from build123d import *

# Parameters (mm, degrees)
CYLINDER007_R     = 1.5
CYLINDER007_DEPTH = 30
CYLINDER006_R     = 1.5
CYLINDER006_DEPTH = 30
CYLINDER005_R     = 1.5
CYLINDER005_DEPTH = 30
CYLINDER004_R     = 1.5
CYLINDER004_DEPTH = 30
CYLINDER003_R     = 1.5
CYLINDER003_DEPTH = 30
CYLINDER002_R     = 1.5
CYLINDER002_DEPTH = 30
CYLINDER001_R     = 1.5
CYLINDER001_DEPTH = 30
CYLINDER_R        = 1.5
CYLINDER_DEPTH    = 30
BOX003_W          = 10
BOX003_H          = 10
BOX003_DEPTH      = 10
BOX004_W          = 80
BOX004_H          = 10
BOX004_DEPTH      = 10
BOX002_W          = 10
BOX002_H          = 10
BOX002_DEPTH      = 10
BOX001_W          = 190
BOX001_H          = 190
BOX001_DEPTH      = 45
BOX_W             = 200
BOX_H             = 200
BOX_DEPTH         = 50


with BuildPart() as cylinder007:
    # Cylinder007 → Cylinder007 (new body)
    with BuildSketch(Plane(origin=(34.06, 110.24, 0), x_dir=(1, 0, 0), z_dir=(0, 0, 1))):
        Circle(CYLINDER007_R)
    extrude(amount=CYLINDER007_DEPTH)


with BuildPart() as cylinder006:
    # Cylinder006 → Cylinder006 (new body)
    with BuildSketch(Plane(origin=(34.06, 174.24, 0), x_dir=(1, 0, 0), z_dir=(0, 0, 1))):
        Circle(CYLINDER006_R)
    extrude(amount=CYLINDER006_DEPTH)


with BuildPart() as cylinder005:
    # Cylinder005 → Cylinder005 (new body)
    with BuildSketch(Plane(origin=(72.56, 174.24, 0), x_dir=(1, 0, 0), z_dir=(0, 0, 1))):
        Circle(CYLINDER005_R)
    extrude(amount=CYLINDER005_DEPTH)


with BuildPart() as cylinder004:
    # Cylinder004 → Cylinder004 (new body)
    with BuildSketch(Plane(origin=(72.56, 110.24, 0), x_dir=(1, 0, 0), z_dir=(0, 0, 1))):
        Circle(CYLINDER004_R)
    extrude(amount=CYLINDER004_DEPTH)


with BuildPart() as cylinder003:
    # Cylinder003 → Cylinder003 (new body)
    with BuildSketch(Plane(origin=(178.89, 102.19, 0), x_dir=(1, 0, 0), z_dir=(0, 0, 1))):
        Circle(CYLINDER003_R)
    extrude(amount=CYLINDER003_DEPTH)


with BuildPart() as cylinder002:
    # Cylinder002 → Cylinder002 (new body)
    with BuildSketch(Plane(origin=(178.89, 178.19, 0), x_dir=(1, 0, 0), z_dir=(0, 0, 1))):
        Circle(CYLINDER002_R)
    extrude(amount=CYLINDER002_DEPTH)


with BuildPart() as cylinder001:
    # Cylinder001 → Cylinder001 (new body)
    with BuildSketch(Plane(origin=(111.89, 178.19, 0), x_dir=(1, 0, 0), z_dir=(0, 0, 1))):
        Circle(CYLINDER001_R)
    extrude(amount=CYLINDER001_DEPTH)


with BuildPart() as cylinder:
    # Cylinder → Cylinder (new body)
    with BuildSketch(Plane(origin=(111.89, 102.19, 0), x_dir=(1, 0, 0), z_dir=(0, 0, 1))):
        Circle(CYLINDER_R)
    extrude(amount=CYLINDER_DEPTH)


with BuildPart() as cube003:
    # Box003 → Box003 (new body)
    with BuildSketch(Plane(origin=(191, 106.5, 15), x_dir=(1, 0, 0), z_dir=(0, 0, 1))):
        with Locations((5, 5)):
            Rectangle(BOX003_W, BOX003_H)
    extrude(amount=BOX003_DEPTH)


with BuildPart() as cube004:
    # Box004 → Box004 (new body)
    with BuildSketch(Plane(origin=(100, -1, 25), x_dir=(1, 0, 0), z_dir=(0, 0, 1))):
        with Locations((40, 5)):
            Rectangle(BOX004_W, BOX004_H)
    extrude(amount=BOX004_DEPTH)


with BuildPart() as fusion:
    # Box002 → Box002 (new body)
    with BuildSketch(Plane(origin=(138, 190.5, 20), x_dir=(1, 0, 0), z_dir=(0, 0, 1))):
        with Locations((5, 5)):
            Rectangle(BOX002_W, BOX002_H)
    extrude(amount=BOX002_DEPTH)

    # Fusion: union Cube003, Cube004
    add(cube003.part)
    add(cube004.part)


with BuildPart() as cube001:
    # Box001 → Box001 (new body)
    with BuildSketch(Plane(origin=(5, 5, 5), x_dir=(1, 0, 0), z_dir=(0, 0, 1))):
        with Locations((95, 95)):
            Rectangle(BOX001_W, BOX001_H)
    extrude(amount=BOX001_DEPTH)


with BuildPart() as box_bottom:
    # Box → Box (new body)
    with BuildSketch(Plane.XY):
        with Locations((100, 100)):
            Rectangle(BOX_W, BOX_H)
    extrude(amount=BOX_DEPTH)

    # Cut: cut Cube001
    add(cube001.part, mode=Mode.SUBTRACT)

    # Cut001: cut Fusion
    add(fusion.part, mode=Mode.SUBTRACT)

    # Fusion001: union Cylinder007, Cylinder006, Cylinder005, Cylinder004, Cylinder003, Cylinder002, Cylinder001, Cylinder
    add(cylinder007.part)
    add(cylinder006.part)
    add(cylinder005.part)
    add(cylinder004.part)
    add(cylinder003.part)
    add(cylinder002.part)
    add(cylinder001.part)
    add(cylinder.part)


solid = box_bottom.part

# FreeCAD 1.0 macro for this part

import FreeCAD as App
import Part
import Sketcher

V = App.Vector
Q = App.Units.Quantity


def add_polygon(sketch, points):
    """Adds a closed chain of lines whose ends are joined by coincident constraints."""
    first, n = sketch.GeometryCount, len(points)
    for a, b in zip(points, points[1:] + points[:1]):
        sketch.addGeometry(Part.LineSegment(App.Vector(*a, 0), App.Vector(*b, 0)), False)
    for i in range(n):
        sketch.addConstraint(Sketcher.Constraint("Coincident", first + i, 2, first + (i + 1) % n, 1))

doc = App.newDocument("Part")
params = doc.addObject("Spreadsheet::Sheet", "Params")
for row, (alias, value) in enumerate([
    ("sketch1_diameter", "3 mm"),
    ("pad1_length", "30 mm"),
    ("sketch2_diameter", "3 mm"),
    ("pad2_length", "30 mm"),
    ("sketch3_diameter", "3 mm"),
    ("pad3_length", "30 mm"),
    ("sketch4_diameter", "3 mm"),
    ("pad4_length", "30 mm"),
    ("sketch5_diameter", "3 mm"),
    ("pad5_length", "30 mm"),
    ("sketch6_diameter", "3 mm"),
    ("pad6_length", "30 mm"),
    ("sketch7_diameter", "3 mm"),
    ("pad7_length", "30 mm"),
    ("sketch8_diameter", "3 mm"),
    ("pad8_length", "30 mm"),
    ("sketch9_width", "10 mm"),
    ("pad9_length", "10 mm"),
    ("sketch10_width", "80 mm"),
    ("sketch10_height", "10 mm"),
    ("pad10_length", "10 mm"),
    ("sketch11_width", "10 mm"),
    ("pad11_length", "10 mm"),
    ("sketch12_width", "190 mm"),
    ("pad12_length", "45 mm"),
    ("sketch13_width", "200 mm"),
    ("pad13_length", "50 mm"),
], start=1):
    params.set(f"A{row}", alias)
    params.set(f"B{row}", "=" + value)
    params.setAlias(f"B{row}", alias)

body = doc.addObject("PartDesign::Body", "Body")

sketch1 = body.newObject("Sketcher::SketchObject", "Sketch")
sketch1.AttachmentSupport = (doc.getObject("XY_Plane"), [""])
sketch1.MapMode = "FlatFace"
sketch1.addGeometry(Part.Circle(V(34.1, 110.2, 0), V(0, 0, 1), 1.5), False)
sketch1.addConstraint([
    Sketcher.Constraint("Diameter", 0, Q("3 mm")),
    Sketcher.Constraint("DistanceX", -1, 1, 0, 3, Q("34.06 mm")),
    Sketcher.Constraint("DistanceY", -1, 1, 0, 3, Q("110.24 mm")),
])
sketch1.setExpression("Constraints[0]", "Params.sketch1_diameter")
pad1 = body.newObject("PartDesign::Pad", "Pad")
pad1.Profile = sketch1
pad1.setExpression("Length", "Params.pad1_length")
body2 = doc.addObject("PartDesign::Body", "Body001")

sketch2 = body2.newObject("Sketcher::SketchObject", "Sketch001")
sketch2.AttachmentSupport = (doc.getObject("XY_Plane001"), [""])
sketch2.MapMode = "FlatFace"
sketch2.addGeometry(Part.Circle(V(34.1, 174.2, 0), V(0, 0, 1), 1.5), False)
sketch2.addConstraint([
    Sketcher.Constraint("Diameter", 0, Q("3 mm")),
    Sketcher.Constraint("DistanceX", -1, 1, 0, 3, Q("34.06 mm")),
    Sketcher.Constraint("DistanceY", -1, 1, 0, 3, Q("174.24 mm")),
])
sketch2.setExpression("Constraints[0]", "Params.sketch2_diameter")
pad2 = body2.newObject("PartDesign::Pad", "Pad001")
pad2.Profile = sketch2
pad2.setExpression("Length", "Params.pad2_length")
body3 = doc.addObject("PartDesign::Body", "Body002")

sketch3 = body3.newObject("Sketcher::SketchObject", "Sketch002")
sketch3.AttachmentSupport = (doc.getObject("XY_Plane002"), [""])
sketch3.MapMode = "FlatFace"
sketch3.addGeometry(Part.Circle(V(72.6, 174.2, 0), V(0, 0, 1), 1.5), False)
sketch3.addConstraint([
    Sketcher.Constraint("Diameter", 0, Q("3 mm")),
    Sketcher.Constraint("DistanceX", -1, 1, 0, 3, Q("72.56 mm")),
    Sketcher.Constraint("DistanceY", -1, 1, 0, 3, Q("174.24 mm")),
])
sketch3.setExpression("Constraints[0]", "Params.sketch3_diameter")
pad3 = body3.newObject("PartDesign::Pad", "Pad002")
pad3.Profile = sketch3
pad3.setExpression("Length", "Params.pad3_length")
body4 = doc.addObject("PartDesign::Body", "Body003")

sketch4 = body4.newObject("Sketcher::SketchObject", "Sketch003")
sketch4.AttachmentSupport = (doc.getObject("XY_Plane003"), [""])
sketch4.MapMode = "FlatFace"
sketch4.addGeometry(Part.Circle(V(72.6, 110.2, 0), V(0, 0, 1), 1.5), False)
sketch4.addConstraint([
    Sketcher.Constraint("Diameter", 0, Q("3 mm")),
    Sketcher.Constraint("DistanceX", -1, 1, 0, 3, Q("72.56 mm")),
    Sketcher.Constraint("DistanceY", -1, 1, 0, 3, Q("110.24 mm")),
])
sketch4.setExpression("Constraints[0]", "Params.sketch4_diameter")
pad4 = body4.newObject("PartDesign::Pad", "Pad003")
pad4.Profile = sketch4
pad4.setExpression("Length", "Params.pad4_length")
body5 = doc.addObject("PartDesign::Body", "Body004")

sketch5 = body5.newObject("Sketcher::SketchObject", "Sketch004")
sketch5.AttachmentSupport = (doc.getObject("XY_Plane004"), [""])
sketch5.MapMode = "FlatFace"
sketch5.addGeometry(Part.Circle(V(178.9, 102.2, 0), V(0, 0, 1), 1.5), False)
sketch5.addConstraint([
    Sketcher.Constraint("Diameter", 0, Q("3 mm")),
    Sketcher.Constraint("DistanceX", -1, 1, 0, 3, Q("178.89 mm")),
    Sketcher.Constraint("DistanceY", -1, 1, 0, 3, Q("102.19 mm")),
])
sketch5.setExpression("Constraints[0]", "Params.sketch5_diameter")
pad5 = body5.newObject("PartDesign::Pad", "Pad004")
pad5.Profile = sketch5
pad5.setExpression("Length", "Params.pad5_length")
body6 = doc.addObject("PartDesign::Body", "Body005")

sketch6 = body6.newObject("Sketcher::SketchObject", "Sketch005")
sketch6.AttachmentSupport = (doc.getObject("XY_Plane005"), [""])
sketch6.MapMode = "FlatFace"
sketch6.addGeometry(Part.Circle(V(178.9, 178.2, 0), V(0, 0, 1), 1.5), False)
sketch6.addConstraint([
    Sketcher.Constraint("Diameter", 0, Q("3 mm")),
    Sketcher.Constraint("DistanceX", -1, 1, 0, 3, Q("178.89 mm")),
    Sketcher.Constraint("DistanceY", -1, 1, 0, 3, Q("178.19 mm")),
])
sketch6.setExpression("Constraints[0]", "Params.sketch6_diameter")
pad6 = body6.newObject("PartDesign::Pad", "Pad005")
pad6.Profile = sketch6
pad6.setExpression("Length", "Params.pad6_length")
body7 = doc.addObject("PartDesign::Body", "Body006")

sketch7 = body7.newObject("Sketcher::SketchObject", "Sketch006")
sketch7.AttachmentSupport = (doc.getObject("XY_Plane006"), [""])
sketch7.MapMode = "FlatFace"
sketch7.addGeometry(Part.Circle(V(111.9, 178.2, 0), V(0, 0, 1), 1.5), False)
sketch7.addConstraint([
    Sketcher.Constraint("Diameter", 0, Q("3 mm")),
    Sketcher.Constraint("DistanceX", -1, 1, 0, 3, Q("111.89 mm")),
    Sketcher.Constraint("DistanceY", -1, 1, 0, 3, Q("178.19 mm")),
])
sketch7.setExpression("Constraints[0]", "Params.sketch7_diameter")
pad7 = body7.newObject("PartDesign::Pad", "Pad006")
pad7.Profile = sketch7
pad7.setExpression("Length", "Params.pad7_length")
body8 = doc.addObject("PartDesign::Body", "Body007")

sketch8 = body8.newObject("Sketcher::SketchObject", "Sketch007")
sketch8.AttachmentSupport = (doc.getObject("XY_Plane007"), [""])
sketch8.MapMode = "FlatFace"
sketch8.addGeometry(Part.Circle(V(111.9, 102.2, 0), V(0, 0, 1), 1.5), False)
sketch8.addConstraint([
    Sketcher.Constraint("Diameter", 0, Q("3 mm")),
    Sketcher.Constraint("DistanceX", -1, 1, 0, 3, Q("111.89 mm")),
    Sketcher.Constraint("DistanceY", -1, 1, 0, 3, Q("102.19 mm")),
])
sketch8.setExpression("Constraints[0]", "Params.sketch8_diameter")
pad8 = body8.newObject("PartDesign::Pad", "Pad007")
pad8.Profile = sketch8
pad8.setExpression("Length", "Params.pad8_length")
body9 = doc.addObject("PartDesign::Body", "Body008")

sketch9 = body9.newObject("Sketcher::SketchObject", "Sketch008")
sketch9.AttachmentSupport = (doc.getObject("XY_Plane008"), [""])
sketch9.MapMode = "FlatFace"
sketch9.AttachmentOffset = App.Placement(V(0, 0, 15), App.Rotation())
add_polygon(sketch9, [(191, 116), (191, 106), (201, 106), (201, 116)])
sketch9.addConstraint([
    Sketcher.Constraint("Vertical", 0),
    Sketcher.Constraint("Horizontal", 1),
    Sketcher.Constraint("Vertical", 2),
    Sketcher.Constraint("Horizontal", 3),
    Sketcher.Constraint("Equal", 3, 0),
    Sketcher.Constraint("DistanceX", 1, 1, 1, 2, Q("10 mm")),
    Sketcher.Constraint("DistanceX", -1, 1, 0, 2, Q("191 mm")),
    Sketcher.Constraint("DistanceY", -1, 1, 0, 2, Q("106.5 mm")),
])
sketch9.setExpression("Constraints[9]", "Params.sketch9_width")
pad9 = body9.newObject("PartDesign::Pad", "Pad008")
pad9.Profile = sketch9
pad9.setExpression("Length", "Params.pad9_length")
body10 = doc.addObject("PartDesign::Body", "Body009")

sketch10 = body10.newObject("Sketcher::SketchObject", "Sketch009")
sketch10.AttachmentSupport = (doc.getObject("XY_Plane009"), [""])
sketch10.MapMode = "FlatFace"
sketch10.AttachmentOffset = App.Placement(V(0, 0, 25), App.Rotation())
add_polygon(sketch10, [(100, 9), (100, -1), (180, -1), (180, 9)])
sketch10.addConstraint([
    Sketcher.Constraint("Vertical", 0),
    Sketcher.Constraint("Horizontal", 1),
    Sketcher.Constraint("Vertical", 2),
    Sketcher.Constraint("Horizontal", 3),
    Sketcher.Constraint("DistanceX", 1, 1, 1, 2, Q("80 mm")),
    Sketcher.Constraint("DistanceY", 0, 2, 0, 1, Q("10 mm")),
    Sketcher.Constraint("DistanceX", -1, 1, 0, 2, Q("100 mm")),
    Sketcher.Constraint("DistanceY", 0, 2, -1, 1, Q("1 mm")),
])
sketch10.setExpression("Constraints[8]", "Params.sketch10_width")
sketch10.setExpression("Constraints[9]", "Params.sketch10_height")
pad10 = body10.newObject("PartDesign::Pad", "Pad009")
pad10.Profile = sketch10
pad10.setExpression("Length", "Params.pad10_length")
body11 = doc.addObject("PartDesign::Body", "Body010")
body11.AllowCompound = True

sketch11 = body11.newObject("Sketcher::SketchObject", "Sketch010")
sketch11.AttachmentSupport = (doc.getObject("XY_Plane010"), [""])
sketch11.MapMode = "FlatFace"
sketch11.AttachmentOffset = App.Placement(V(0, 0, 20), App.Rotation())
add_polygon(sketch11, [(138, 200), (138, 190), (148, 190), (148, 200)])
sketch11.addConstraint([
    Sketcher.Constraint("Vertical", 0),
    Sketcher.Constraint("Horizontal", 1),
    Sketcher.Constraint("Vertical", 2),
    Sketcher.Constraint("Horizontal", 3),
    Sketcher.Constraint("Equal", 3, 0),
    Sketcher.Constraint("DistanceX", 1, 1, 1, 2, Q("10 mm")),
    Sketcher.Constraint("DistanceX", -1, 1, 0, 2, Q("138 mm")),
    Sketcher.Constraint("DistanceY", -1, 1, 0, 2, Q("190.5 mm")),
])
sketch11.setExpression("Constraints[9]", "Params.sketch11_width")
pad11 = body11.newObject("PartDesign::Pad", "Pad010")
pad11.Profile = sketch11
pad11.setExpression("Length", "Params.pad11_length")
doc.recompute()

boolean = body11.newObject("PartDesign::Boolean", "Boolean")
boolean.Type = "Fuse"
boolean.addObjects([body9])
doc.recompute()

boolean2 = body11.newObject("PartDesign::Boolean", "Boolean001")
boolean2.Type = "Fuse"
boolean2.addObjects([body10])
body12 = doc.addObject("PartDesign::Body", "Body011")

sketch12 = body12.newObject("Sketcher::SketchObject", "Sketch011")
sketch12.AttachmentSupport = (doc.getObject("XY_Plane011"), [""])
sketch12.MapMode = "FlatFace"
sketch12.AttachmentOffset = App.Placement(V(0, 0, 5), App.Rotation())
add_polygon(sketch12, [(5, 195), (5, 5), (195, 5), (195, 195)])
sketch12.addConstraint([
    Sketcher.Constraint("Vertical", 0),
    Sketcher.Constraint("Horizontal", 1),
    Sketcher.Constraint("Vertical", 2),
    Sketcher.Constraint("Horizontal", 3),
    Sketcher.Constraint("Equal", 3, 0),
    Sketcher.Constraint("DistanceX", 1, 1, 1, 2, Q("190 mm")),
    Sketcher.Constraint("DistanceX", -1, 1, 0, 2, Q("5 mm")),
    Sketcher.Constraint("DistanceY", -1, 1, 0, 2, Q("5 mm")),
])
sketch12.setExpression("Constraints[9]", "Params.sketch12_width")
pad12 = body12.newObject("PartDesign::Pad", "Pad011")
pad12.Profile = sketch12
pad12.setExpression("Length", "Params.pad12_length")
body13 = doc.addObject("PartDesign::Body", "Body012")

sketch13 = body13.newObject("Sketcher::SketchObject", "Sketch012")
sketch13.AttachmentSupport = (doc.getObject("XY_Plane012"), [""])
sketch13.MapMode = "FlatFace"
add_polygon(sketch13, [(0, 200), (0, 0), (200, 0), (200, 200)])
sketch13.addConstraint([
    Sketcher.Constraint("Vertical", 0),
    Sketcher.Constraint("Horizontal", 1),
    Sketcher.Constraint("Vertical", 2),
    Sketcher.Constraint("Horizontal", 3),
    Sketcher.Constraint("Coincident", 0, 2, -1, 1),
    Sketcher.Constraint("Equal", 3, 0),
    Sketcher.Constraint("DistanceX", 1, 1, 1, 2, Q("200 mm")),
])
sketch13.setExpression("Constraints[10]", "Params.sketch13_width")
pad13 = body13.newObject("PartDesign::Pad", "Pad012")
pad13.Profile = sketch13
pad13.setExpression("Length", "Params.pad13_length")
doc.recompute()

boolean3 = body13.newObject("PartDesign::Boolean", "Boolean002")
boolean3.Type = "Cut"
boolean3.addObjects([body12])
doc.recompute()

boolean4 = body13.newObject("PartDesign::Boolean", "Boolean003")
boolean4.Type = "Cut"
boolean4.addObjects([body11])
doc.recompute()

boolean5 = body13.newObject("PartDesign::Boolean", "Boolean004")
boolean5.Type = "Fuse"
boolean5.addObjects([body])
doc.recompute()

boolean6 = body13.newObject("PartDesign::Boolean", "Boolean005")
boolean6.Type = "Fuse"
boolean6.addObjects([body2])
doc.recompute()

boolean7 = body13.newObject("PartDesign::Boolean", "Boolean006")
boolean7.Type = "Fuse"
boolean7.addObjects([body3])
doc.recompute()

boolean8 = body13.newObject("PartDesign::Boolean", "Boolean007")
boolean8.Type = "Fuse"
boolean8.addObjects([body4])
doc.recompute()

boolean9 = body13.newObject("PartDesign::Boolean", "Boolean008")
boolean9.Type = "Fuse"
boolean9.addObjects([body5])
doc.recompute()

boolean10 = body13.newObject("PartDesign::Boolean", "Boolean009")
boolean10.Type = "Fuse"
boolean10.addObjects([body6])
doc.recompute()

boolean11 = body13.newObject("PartDesign::Boolean", "Boolean010")
boolean11.Type = "Fuse"
boolean11.addObjects([body7])
doc.recompute()

boolean12 = body13.newObject("PartDesign::Boolean", "Boolean011")
boolean12.Type = "Fuse"
boolean12.addObjects([body8])

doc.recompute()
